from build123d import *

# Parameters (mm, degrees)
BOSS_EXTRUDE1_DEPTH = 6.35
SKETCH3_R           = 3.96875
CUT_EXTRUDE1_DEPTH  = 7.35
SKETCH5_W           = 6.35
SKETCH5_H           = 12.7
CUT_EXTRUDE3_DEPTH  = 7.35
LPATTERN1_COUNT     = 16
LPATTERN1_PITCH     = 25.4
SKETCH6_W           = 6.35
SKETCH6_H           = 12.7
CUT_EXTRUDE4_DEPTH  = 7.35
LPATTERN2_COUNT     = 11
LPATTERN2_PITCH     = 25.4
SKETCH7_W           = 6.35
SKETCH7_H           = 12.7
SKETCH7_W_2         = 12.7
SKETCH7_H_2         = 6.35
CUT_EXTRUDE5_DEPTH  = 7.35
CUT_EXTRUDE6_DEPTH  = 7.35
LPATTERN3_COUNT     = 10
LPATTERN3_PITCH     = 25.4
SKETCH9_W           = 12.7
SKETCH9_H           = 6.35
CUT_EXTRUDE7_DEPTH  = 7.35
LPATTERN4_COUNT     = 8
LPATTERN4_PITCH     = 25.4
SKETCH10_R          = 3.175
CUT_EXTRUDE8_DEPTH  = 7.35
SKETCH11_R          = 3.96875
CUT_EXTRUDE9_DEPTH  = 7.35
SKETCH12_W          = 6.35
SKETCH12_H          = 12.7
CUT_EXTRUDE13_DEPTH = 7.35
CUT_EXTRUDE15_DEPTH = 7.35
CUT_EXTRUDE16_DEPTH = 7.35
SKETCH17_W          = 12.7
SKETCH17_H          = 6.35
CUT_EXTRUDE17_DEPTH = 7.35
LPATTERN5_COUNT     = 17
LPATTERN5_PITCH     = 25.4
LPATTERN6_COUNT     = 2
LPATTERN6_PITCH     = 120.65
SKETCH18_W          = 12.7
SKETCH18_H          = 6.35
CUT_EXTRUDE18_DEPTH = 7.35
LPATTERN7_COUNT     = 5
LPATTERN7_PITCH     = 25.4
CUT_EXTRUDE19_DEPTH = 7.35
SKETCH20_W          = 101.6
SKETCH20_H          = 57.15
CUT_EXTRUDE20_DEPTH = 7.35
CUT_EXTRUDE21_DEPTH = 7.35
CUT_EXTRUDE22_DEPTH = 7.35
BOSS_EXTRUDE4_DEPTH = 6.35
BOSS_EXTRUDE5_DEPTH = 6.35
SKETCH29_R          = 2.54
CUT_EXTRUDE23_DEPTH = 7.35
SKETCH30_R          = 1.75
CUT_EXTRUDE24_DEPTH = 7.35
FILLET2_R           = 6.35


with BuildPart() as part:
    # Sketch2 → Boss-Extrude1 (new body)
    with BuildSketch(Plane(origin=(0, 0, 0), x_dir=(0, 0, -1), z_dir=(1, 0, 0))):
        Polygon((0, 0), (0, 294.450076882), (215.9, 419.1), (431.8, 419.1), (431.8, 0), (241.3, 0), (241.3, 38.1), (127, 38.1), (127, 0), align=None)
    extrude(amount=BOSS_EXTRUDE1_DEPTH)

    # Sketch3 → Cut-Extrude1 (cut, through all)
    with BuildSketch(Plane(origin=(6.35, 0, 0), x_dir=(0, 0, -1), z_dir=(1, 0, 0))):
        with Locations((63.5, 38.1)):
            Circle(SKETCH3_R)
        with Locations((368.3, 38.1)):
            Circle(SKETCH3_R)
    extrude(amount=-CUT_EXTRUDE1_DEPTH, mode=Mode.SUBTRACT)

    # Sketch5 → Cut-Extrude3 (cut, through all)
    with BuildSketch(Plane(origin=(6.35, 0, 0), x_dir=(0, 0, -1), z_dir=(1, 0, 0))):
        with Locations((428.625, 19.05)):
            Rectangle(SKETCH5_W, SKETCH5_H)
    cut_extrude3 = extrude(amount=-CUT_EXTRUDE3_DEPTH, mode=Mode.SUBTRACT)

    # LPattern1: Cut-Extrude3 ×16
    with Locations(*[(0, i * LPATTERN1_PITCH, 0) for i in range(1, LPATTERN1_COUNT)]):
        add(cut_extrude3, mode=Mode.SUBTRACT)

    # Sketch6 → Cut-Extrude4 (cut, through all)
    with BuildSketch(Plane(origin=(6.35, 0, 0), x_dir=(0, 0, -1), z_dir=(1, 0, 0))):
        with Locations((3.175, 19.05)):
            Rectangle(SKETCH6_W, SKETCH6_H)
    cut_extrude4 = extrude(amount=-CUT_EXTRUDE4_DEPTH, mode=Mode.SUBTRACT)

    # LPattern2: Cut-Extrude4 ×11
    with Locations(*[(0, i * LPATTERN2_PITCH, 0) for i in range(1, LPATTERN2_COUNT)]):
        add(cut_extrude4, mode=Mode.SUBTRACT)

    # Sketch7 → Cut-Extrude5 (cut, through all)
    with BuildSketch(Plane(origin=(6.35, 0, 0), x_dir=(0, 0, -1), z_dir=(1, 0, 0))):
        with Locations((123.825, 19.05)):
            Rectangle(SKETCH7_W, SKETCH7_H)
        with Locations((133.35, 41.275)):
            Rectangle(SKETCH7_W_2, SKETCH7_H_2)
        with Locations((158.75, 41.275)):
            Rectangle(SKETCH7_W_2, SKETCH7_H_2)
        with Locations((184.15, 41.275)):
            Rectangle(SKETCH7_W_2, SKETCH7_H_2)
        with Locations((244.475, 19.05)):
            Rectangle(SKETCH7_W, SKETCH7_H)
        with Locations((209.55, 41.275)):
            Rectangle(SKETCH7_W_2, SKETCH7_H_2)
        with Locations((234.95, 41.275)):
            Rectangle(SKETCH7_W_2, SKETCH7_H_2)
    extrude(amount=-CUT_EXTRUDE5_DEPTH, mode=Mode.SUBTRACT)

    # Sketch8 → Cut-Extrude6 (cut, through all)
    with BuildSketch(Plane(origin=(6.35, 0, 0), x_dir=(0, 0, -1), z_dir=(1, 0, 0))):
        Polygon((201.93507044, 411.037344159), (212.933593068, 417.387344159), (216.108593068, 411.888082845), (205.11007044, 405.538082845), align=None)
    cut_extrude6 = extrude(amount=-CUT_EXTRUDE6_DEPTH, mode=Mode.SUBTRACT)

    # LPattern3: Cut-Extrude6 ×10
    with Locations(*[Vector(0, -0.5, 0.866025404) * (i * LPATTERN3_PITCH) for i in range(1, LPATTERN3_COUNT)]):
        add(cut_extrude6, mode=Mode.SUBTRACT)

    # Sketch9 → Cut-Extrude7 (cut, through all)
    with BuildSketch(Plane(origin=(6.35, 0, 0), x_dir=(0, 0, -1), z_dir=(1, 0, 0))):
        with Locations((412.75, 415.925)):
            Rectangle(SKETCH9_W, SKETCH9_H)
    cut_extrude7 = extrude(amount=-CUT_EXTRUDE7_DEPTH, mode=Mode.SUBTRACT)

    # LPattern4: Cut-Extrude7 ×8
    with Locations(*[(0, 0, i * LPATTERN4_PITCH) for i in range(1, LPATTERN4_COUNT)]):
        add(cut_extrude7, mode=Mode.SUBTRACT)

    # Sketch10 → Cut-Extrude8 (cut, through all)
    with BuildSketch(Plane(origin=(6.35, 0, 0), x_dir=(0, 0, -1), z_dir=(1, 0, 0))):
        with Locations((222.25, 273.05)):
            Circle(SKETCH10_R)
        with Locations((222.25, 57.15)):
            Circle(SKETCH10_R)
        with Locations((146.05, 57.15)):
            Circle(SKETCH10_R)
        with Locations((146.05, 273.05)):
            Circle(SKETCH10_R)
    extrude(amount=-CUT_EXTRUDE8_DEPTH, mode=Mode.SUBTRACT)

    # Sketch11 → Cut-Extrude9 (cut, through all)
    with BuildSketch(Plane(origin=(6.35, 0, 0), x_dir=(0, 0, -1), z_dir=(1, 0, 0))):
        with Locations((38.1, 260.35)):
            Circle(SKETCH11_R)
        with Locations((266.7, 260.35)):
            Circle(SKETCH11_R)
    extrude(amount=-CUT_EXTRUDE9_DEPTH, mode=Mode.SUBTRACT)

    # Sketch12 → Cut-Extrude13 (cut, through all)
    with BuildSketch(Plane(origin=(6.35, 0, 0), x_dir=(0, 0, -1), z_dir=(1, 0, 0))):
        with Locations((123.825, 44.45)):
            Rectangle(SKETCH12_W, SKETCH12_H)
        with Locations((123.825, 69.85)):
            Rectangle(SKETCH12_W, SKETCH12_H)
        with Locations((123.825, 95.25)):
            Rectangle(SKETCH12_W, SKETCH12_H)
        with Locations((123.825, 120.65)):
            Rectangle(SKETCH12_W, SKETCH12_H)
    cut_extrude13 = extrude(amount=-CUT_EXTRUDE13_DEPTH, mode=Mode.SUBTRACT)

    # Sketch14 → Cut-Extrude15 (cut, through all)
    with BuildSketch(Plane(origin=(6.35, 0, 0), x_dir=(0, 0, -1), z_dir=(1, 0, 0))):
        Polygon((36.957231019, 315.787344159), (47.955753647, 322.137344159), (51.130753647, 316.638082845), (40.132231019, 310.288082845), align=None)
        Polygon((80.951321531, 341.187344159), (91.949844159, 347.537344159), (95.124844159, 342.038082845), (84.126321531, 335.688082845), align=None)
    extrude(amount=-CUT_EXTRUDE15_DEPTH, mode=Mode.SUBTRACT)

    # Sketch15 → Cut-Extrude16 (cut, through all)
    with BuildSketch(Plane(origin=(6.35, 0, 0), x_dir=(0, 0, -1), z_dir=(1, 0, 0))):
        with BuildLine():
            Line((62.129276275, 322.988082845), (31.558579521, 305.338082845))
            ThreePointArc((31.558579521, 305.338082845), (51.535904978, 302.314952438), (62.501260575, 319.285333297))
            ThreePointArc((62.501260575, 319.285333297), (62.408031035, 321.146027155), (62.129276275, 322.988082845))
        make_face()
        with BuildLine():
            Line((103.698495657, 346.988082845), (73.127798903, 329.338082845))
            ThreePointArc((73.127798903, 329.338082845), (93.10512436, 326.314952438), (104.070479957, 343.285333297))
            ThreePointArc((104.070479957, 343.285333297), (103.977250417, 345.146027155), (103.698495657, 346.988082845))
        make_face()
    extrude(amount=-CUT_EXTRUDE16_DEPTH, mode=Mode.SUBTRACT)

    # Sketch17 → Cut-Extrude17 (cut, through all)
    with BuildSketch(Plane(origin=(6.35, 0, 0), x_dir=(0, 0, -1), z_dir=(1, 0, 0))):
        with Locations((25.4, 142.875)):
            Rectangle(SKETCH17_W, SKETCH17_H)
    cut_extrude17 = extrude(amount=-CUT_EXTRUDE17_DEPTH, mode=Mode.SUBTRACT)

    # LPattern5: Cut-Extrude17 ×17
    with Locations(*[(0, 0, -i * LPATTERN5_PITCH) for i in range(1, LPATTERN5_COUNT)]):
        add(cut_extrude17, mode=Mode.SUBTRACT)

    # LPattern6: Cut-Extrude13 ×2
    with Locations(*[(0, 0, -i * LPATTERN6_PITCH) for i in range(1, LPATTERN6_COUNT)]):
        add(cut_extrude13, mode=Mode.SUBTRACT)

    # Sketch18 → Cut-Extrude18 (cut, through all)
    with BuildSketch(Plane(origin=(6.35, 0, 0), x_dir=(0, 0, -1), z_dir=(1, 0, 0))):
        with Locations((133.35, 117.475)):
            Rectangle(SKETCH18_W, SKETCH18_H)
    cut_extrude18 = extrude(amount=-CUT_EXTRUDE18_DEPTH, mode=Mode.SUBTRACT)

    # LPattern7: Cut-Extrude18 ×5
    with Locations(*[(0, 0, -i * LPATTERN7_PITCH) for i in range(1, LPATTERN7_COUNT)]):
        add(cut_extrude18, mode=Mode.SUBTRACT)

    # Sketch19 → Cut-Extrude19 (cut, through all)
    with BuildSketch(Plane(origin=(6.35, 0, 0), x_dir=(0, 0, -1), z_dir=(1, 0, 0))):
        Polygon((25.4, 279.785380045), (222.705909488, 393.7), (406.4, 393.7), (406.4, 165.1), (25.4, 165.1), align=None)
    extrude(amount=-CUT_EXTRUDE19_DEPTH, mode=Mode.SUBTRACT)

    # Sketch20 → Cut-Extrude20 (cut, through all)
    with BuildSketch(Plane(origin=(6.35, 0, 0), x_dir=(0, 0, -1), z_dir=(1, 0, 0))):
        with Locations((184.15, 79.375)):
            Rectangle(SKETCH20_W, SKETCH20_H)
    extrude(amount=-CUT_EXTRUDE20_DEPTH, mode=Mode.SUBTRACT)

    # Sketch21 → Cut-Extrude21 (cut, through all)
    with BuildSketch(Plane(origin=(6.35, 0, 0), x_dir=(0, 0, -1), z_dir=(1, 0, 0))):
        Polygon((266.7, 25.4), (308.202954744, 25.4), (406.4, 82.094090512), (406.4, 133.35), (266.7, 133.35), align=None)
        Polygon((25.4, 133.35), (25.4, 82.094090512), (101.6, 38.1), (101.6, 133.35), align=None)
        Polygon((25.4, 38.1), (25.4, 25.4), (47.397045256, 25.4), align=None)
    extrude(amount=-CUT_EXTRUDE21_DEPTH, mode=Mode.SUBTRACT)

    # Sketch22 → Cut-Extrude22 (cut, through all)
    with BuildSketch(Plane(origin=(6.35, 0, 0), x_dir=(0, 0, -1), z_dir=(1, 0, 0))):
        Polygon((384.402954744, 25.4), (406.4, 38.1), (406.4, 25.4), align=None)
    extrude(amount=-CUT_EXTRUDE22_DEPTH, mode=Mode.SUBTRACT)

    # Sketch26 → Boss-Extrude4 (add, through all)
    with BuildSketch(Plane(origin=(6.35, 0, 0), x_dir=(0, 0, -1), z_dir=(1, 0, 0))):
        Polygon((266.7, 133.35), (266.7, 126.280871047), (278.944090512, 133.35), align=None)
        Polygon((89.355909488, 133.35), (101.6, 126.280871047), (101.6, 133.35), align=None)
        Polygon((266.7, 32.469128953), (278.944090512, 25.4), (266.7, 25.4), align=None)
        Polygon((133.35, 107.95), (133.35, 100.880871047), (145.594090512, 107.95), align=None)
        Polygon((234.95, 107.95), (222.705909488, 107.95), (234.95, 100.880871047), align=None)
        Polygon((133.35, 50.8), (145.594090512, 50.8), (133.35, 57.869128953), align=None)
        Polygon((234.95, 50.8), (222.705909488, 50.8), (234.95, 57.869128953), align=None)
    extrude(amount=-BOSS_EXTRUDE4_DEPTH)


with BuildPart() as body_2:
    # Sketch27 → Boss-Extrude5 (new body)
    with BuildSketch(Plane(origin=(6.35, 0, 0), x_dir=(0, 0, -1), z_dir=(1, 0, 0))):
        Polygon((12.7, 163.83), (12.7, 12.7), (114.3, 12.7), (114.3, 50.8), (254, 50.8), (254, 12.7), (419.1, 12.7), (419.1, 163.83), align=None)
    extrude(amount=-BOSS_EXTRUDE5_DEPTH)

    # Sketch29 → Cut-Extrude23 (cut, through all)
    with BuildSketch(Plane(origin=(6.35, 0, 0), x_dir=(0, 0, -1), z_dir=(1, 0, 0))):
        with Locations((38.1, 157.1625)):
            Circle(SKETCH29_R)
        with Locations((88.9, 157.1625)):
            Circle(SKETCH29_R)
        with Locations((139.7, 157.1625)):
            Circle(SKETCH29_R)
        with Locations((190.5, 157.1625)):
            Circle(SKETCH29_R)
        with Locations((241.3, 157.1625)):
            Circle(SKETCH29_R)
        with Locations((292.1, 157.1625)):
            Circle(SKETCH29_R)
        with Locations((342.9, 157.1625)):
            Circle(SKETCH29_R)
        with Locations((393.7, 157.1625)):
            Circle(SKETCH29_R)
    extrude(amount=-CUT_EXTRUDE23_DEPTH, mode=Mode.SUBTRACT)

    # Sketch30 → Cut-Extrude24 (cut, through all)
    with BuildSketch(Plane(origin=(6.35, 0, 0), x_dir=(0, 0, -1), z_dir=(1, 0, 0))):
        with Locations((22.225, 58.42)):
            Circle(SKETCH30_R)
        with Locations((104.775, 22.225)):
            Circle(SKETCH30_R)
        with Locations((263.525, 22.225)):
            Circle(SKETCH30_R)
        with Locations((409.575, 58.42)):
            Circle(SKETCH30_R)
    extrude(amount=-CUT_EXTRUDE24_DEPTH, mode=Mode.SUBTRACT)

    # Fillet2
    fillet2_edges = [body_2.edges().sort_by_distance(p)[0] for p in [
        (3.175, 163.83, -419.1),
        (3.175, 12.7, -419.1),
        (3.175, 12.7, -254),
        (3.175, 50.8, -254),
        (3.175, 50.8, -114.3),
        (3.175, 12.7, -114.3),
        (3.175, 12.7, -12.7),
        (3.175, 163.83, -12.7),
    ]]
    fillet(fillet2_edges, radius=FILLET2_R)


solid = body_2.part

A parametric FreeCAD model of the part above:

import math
import FreeCAD as App
import Part
import Sketcher
from FreeCAD import Vector
Q = App.Units.Quantity


def edges_at(feature, points):
    """Names of the edges that pass closest to the given points."""
    edges = feature.Shape.Edges
    near = lambda p: min(range(len(edges)), key=lambda i: edges[i].distToShape(Part.Vertex(*p))[0])
    return sorted({f"Edge{near(p) + 1}" for p in points})


def add_polygon(sketch, points):
    """Adds a closed chain of lines whose ends are joined by coincident constraints."""
    first, n = sketch.GeometryCount, len(points)
    for a, b in zip(points, points[1:] + points[:1]):
        sketch.addGeometry(Part.LineSegment(App.Vector(*a, 0), App.Vector(*b, 0)), False)
    for i in range(n):
        sketch.addConstraint(Sketcher.Constraint("Coincident", first + i, 2, first + (i + 1) % n, 1))

doc = App.newDocument("Part")
body = doc.addObject("PartDesign::Body", "Body")

# Sketch on YZ plane
sketch1 = body.newObject("Sketcher::SketchObject", "Sketch")
sketch1.AttachmentSupport = (doc.getObject("YZ_Plane"), [""])
sketch1.MapMode = "FlatFace"
add_polygon(sketch1, [(294.450077, 0), (0, 0), (0, -127), (38.1, -127), (38.1, -241.3), (0, -241.3), (0, -431.8), (419.1, -431.8), (419.1, -215.9)])  # lines 0-8
sketch1.addConstraint(Sketcher.Constraint("Horizontal", 0))
sketch1.addConstraint(Sketcher.Constraint("Vertical", 1))
sketch1.addConstraint(Sketcher.Constraint("Horizontal", 2))
sketch1.addConstraint(Sketcher.Constraint("Vertical", 3))
sketch1.addConstraint(Sketcher.Constraint("Horizontal", 4))
sketch1.addConstraint(Sketcher.Constraint("Vertical", 5))
sketch1.addConstraint(Sketcher.Constraint("Horizontal", 6))
sketch1.addConstraint(Sketcher.Constraint("Vertical", 7))
sketch1.addConstraint(Sketcher.Constraint("Coincident", 0, 2, -1, 1))
sketch1.addConstraint(Sketcher.Constraint("PointOnObject", 4, 2, -2))
sketch1.addConstraint(Sketcher.Constraint("DistanceY", 1, 2, 1, 1, Q("5 in")))
sketch1.addConstraint(Sketcher.Constraint("DistanceX", 2, 1, 2, 2, Q("1.5 in")))
sketch1.addConstraint(Sketcher.Constraint("DistanceX", 6, 1, 6, 2, Q("16.5 in")))
sketch1.addConstraint(Sketcher.Constraint("DistanceY", 3, 2, 3, 1, Q("4.5 in")))
sketch1.addConstraint(Sketcher.Constraint("DistanceY", 5, 2, 5, 1, Q("7.5 in")))
sketch1.addConstraint(Sketcher.Constraint("DistanceY", 7, 1, 7, 2, Q("8.5 in")))
sketch1.addConstraint(Sketcher.Constraint("Angle", 8, Q("120 deg")))
pad1 = body.newObject("PartDesign::Pad", "Pad")
pad1.Profile = sketch1
pad1.Length = Q("0.25 in")

# Sketch on YZ plane
sketch2 = body.newObject("Sketcher::SketchObject", "Sketch001")
sketch2.AttachmentSupport = (doc.getObject("YZ_Plane"), [""])
sketch2.MapMode = "FlatFace"
sketch2.AttachmentOffset = App.Placement(Vector(0, 0, 0.25 * 25.4), App.Rotation())
sketch2.addGeometry(Part.Circle(Vector(38.1, -63.5, 0), Vector(0, 0, 1), 3.96875), False)
sketch2.addGeometry(Part.Circle(Vector(38.1, -368.3, 0), Vector(0, 0, 1), 3.96875), False)
sketch2.addConstraint(Sketcher.Constraint("Equal", 0, 1))
sketch2.addConstraint(Sketcher.Constraint("Vertical", 0, 3, 1, 3))
sketch2.addConstraint(Sketcher.Constraint("Diameter", 0, Q("0.3125 in")))
sketch2.addConstraint(Sketcher.Constraint("DistanceY", 1, 3, 0, 3, Q("12 in")))
sketch2.addConstraint(Sketcher.Constraint("DistanceX", -1, 1, 0, 3, Q("1.5 in")))
sketch2.addConstraint(Sketcher.Constraint("DistanceY", 0, 3, -1, 1, Q("2.5 in")))
pocket1 = body.newObject("PartDesign::Pocket", "Pocket")
pocket1.Profile = sketch2
pocket1.Type = "ThroughAll"

# Sketch on YZ plane
sketch3 = body.newObject("Sketcher::SketchObject", "Sketch002")
sketch3.AttachmentSupport = (doc.getObject("YZ_Plane"), [""])
sketch3.MapMode = "FlatFace"
sketch3.AttachmentOffset = App.Placement(Vector(0, 0, 0.25 * 25.4), App.Rotation())
add_polygon(sketch3, [(25.4, -425.45), (12.7, -425.45), (12.7, -431.8), (25.4, -431.8)])  # lines 0-3
sketch3.addConstraint(Sketcher.Constraint("Horizontal", 0))
sketch3.addConstraint(Sketcher.Constraint("Vertical", 1))
sketch3.addConstraint(Sketcher.Constraint("Horizontal", 2))
sketch3.addConstraint(Sketcher.Constraint("Vertical", 3))
sketch3.addConstraint(Sketcher.Constraint("DistanceX", 0, 2, 0, 1, Q("0.5 in")))
sketch3.addConstraint(Sketcher.Constraint("DistanceY", 1, 2, -1, 1, Q("17 in")))
sketch3.addConstraint(Sketcher.Constraint("DistanceX", -1, 1, 2, 2, Q("1 in")))
sketch3.addConstraint(Sketcher.Constraint("DistanceY", 1, 2, 1, 1, Q("0.25 in")))
pocket2 = body.newObject("PartDesign::Pocket", "Pocket001")
pocket2.Profile = sketch3
pocket2.Type = "ThroughAll"
doc.recompute()

linearpattern = body.newObject("PartDesign::LinearPattern", "LinearPattern")
linearpattern.Originals = [pocket2]
linearpattern.Direction = (doc.getObject("Y_Axis"), [""])
linearpattern.Mode = "offset"
linearpattern.Offset = Q("1 in")
linearpattern.Occurrences = 16
body.Tip = linearpattern

# Sketch on YZ plane
sketch4 = body.newObject("Sketcher::SketchObject", "Sketch003")
sketch4.AttachmentSupport = (doc.getObject("YZ_Plane"), [""])
sketch4.MapMode = "FlatFace"
sketch4.AttachmentOffset = App.Placement(Vector(0, 0, 0.25 * 25.4), App.Rotation())
add_polygon(sketch4, [(25.4, 0), (12.7, 0), (12.7, -6.35), (25.4, -6.35)])  # lines 0-3
sketch4.addConstraint(Sketcher.Constraint("Horizontal", 0))
sketch4.addConstraint(Sketcher.Constraint("Vertical", 1))
sketch4.addConstraint(Sketcher.Constraint("Horizontal", 2))
sketch4.addConstraint(Sketcher.Constraint("Vertical", 3))
sketch4.addConstraint(Sketcher.Constraint("PointOnObject", 0, 2, -1))
sketch4.addConstraint(Sketcher.Constraint("DistanceX", 0, 2, 0, 1, Q("0.5 in")))
sketch4.addConstraint(Sketcher.Constraint("DistanceX", -1, 1, 2, 2, Q("1 in")))
sketch4.addConstraint(Sketcher.Constraint("DistanceY", 1, 2, 1, 1, Q("0.25 in")))
pocket3 = body.newObject("PartDesign::Pocket", "Pocket002")
pocket3.Profile = sketch4
pocket3.Type = "ThroughAll"
doc.recompute()

linearpattern2 = body.newObject("PartDesign::LinearPattern", "LinearPattern001")
linearpattern2.Originals = [pocket3]
linearpattern2.Direction = (doc.getObject("Y_Axis"), [""])
linearpattern2.Mode = "offset"
linearpattern2.Offset = Q("1 in")
linearpattern2.Occurrences = 11
body.Tip = linearpattern2

# Sketch on YZ plane
sketch5 = body.newObject("Sketcher::SketchObject", "Sketch004")
sketch5.AttachmentSupport = (doc.getObject("YZ_Plane"), [""])
sketch5.MapMode = "FlatFace"
sketch5.AttachmentOffset = App.Placement(Vector(0, 0, 0.25 * 25.4), App.Rotation())
add_polygon(sketch5, [(25.4, -120.65), (12.7, -120.65), (12.7, -127), (25.4, -127)])  # lines 0-3
add_polygon(sketch5, [(44.45, -127), (38.1, -127), (38.1, -139.7), (44.45, -139.7)])  # lines 4-7
add_polygon(sketch5, [(44.45, -152.4), (38.1, -152.4), (38.1, -165.1), (44.45, -165.1)])  # lines 8-11
add_polygon(sketch5, [(44.45, -177.8), (38.1, -177.8), (38.1, -190.5), (44.45, -190.5)])  # lines 12-15
add_polygon(sketch5, [(25.4, -241.3), (12.7, -241.3), (12.7, -247.65), (25.4, -247.65)])  # lines 16-19
add_polygon(sketch5, [(44.45, -203.2), (38.1, -203.2), (38.1, -215.9), (44.45, -215.9)])  # lines 20-23
add_polygon(sketch5, [(44.45, -228.6), (38.1, -228.6), (38.1, -241.3), (44.45, -241.3)])  # lines 24-27
sketch5.addConstraint(Sketcher.Constraint("Horizontal", 0))
sketch5.addConstraint(Sketcher.Constraint("Vertical", 1))
sketch5.addConstraint(Sketcher.Constraint("Horizontal", 2))
sketch5.addConstraint(Sketcher.Constraint("Vertical", 3))
sketch5.addConstraint(Sketcher.Constraint("Horizontal", 4))
sketch5.addConstraint(Sketcher.Constraint("Vertical", 5))
sketch5.addConstraint(Sketcher.Constraint("Horizontal", 6))
sketch5.addConstraint(Sketcher.Constraint("Vertical", 7))
sketch5.addConstraint(Sketcher.Constraint("Horizontal", 8))
sketch5.addConstraint(Sketcher.Constraint("Vertical", 9))
sketch5.addConstraint(Sketcher.Constraint("Horizontal", 10))
sketch5.addConstraint(Sketcher.Constraint("Vertical", 11))
sketch5.addConstraint(Sketcher.Constraint("Horizontal", 12))
sketch5.addConstraint(Sketcher.Constraint("Vertical", 13))
sketch5.addConstraint(Sketcher.Constraint("Horizontal", 14))
sketch5.addConstraint(Sketcher.Constraint("Vertical", 15))
sketch5.addConstraint(Sketcher.Constraint("Horizontal", 16))
sketch5.addConstraint(Sketcher.Constraint("Vertical", 17))
sketch5.addConstraint(Sketcher.Constraint("Horizontal", 18))
sketch5.addConstraint(Sketcher.Constraint("Vertical", 19))
sketch5.addConstraint(Sketcher.Constraint("Horizontal", 20))
sketch5.addConstraint(Sketcher.Constraint("Vertical", 21))
sketch5.addConstraint(Sketcher.Constraint("Horizontal", 22))
sketch5.addConstraint(Sketcher.Constraint("Vertical", 23))
sketch5.addConstraint(Sketcher.Constraint("Horizontal", 24))
sketch5.addConstraint(Sketcher.Constraint("Vertical", 25))
sketch5.addConstraint(Sketcher.Constraint("Horizontal", 26))
sketch5.addConstraint(Sketcher.Constraint("Vertical", 27))
sketch5.addConstraint(Sketcher.Constraint("Horizontal", 2, 2, 4, 2))
sketch5.addConstraint(Sketcher.Constraint("Horizontal", 19, 2, 25, 2))
sketch5.addConstraint(Sketcher.Constraint("Vertical", 5, 2, 8, 2))
sketch5.addConstraint(Sketcher.Constraint("Vertical", 7, 2, 10, 2))
sketch5.addConstraint(Sketcher.Constraint("Vertical", 9, 2, 12, 2))
sketch5.addConstraint(Sketcher.Constraint("Vertical", 11, 2, 14, 2))
sketch5.addConstraint(Sketcher.Constraint("Vertical", 1, 2, 16, 2))
sketch5.addConstraint(Sketcher.Constraint("Vertical", 3, 2, 18, 2))
sketch5.addConstraint(Sketcher.Constraint("Vertical", 13, 2, 20, 2))
sketch5.addConstraint(Sketcher.Constraint("Vertical", 15, 2, 22, 2))
sketch5.addConstraint(Sketcher.Constraint("Vertical", 21, 2, 24, 2))
sketch5.addConstraint(Sketcher.Constraint("Vertical", 23, 2, 26, 2))
sketch5.addConstraint(Sketcher.Constraint("Equal", 26, 1))
sketch5.addConstraint(Sketcher.Constraint("Equal", 18, 5))
sketch5.addConstraint(Sketcher.Constraint("Equal", 7, 9))
sketch5.addConstraint(Sketcher.Constraint("Equal", 11, 13))
sketch5.addConstraint(Sketcher.Constraint("Equal", 3, 17))
sketch5.addConstraint(Sketcher.Constraint("Equal", 15, 21))
sketch5.addConstraint(Sketcher.Constraint("Equal", 23, 25))
sketch5.addConstraint(Sketcher.Constraint("DistanceX", 0, 2, 0, 1, Q("0.5 in")))
sketch5.addConstraint(Sketcher.Constraint("DistanceY", 1, 2, -1, 1, Q("5 in")))
sketch5.addConstraint(Sketcher.Constraint("DistanceX", -1, 1, 2, 2, Q("1 in")))
sketch5.addConstraint(Sketcher.Constraint("DistanceY", 8, 2, -1, 1, Q("6 in")))
sketch5.addConstraint(Sketcher.Constraint("DistanceY", 12, 2, -1, 1, Q("7 in")))
sketch5.addConstraint(Sketcher.Constraint("DistanceY", 20, 2, -1, 1, Q("8 in")))
sketch5.addConstraint(Sketcher.Constraint("DistanceY", 24, 2, -1, 1, Q("9 in")))
sketch5.addConstraint(Sketcher.Constraint("DistanceX", 1, 2, 4, 2, Q("1 in")))
sketch5.addConstraint(Sketcher.Constraint("DistanceX", 4, 2, 4, 1, Q("0.25 in")))
pocket4 = body.newObject("PartDesign::Pocket", "Pocket003")
pocket4.Profile = sketch5
pocket4.Type = "ThroughAll"

# Sketch on YZ plane
sketch6 = body.newObject("Sketcher::SketchObject", "Sketch005")
sketch6.AttachmentSupport = (doc.getObject("YZ_Plane"), [""])
sketch6.MapMode = "FlatFace"
sketch6.AttachmentOffset = App.Placement(Vector(0, 0, 0.25 * 25.4), App.Rotation())
add_polygon(sketch6, [(417.387344, -212.933593), (411.037344, -201.93507), (405.538083, -205.11007), (411.888083, -216.108593)])  # lines 0-3
sketch6.addConstraint(Sketcher.Constraint("Perpendicular", 0, 1))
sketch6.addConstraint(Sketcher.Constraint("Perpendicular", 1, 2))
sketch6.addConstraint(Sketcher.Constraint("Perpendicular", 2, 3))
sketch6.addConstraint(Sketcher.Constraint("Angle", 0, Q("120 deg")))
sketch6.addConstraint(Sketcher.Constraint("Distance", 0, Q("0.5 in")))
sketch6.addConstraint(Sketcher.Constraint("Distance", 1, Q("0.25 in")))
sketch6.addConstraint(Sketcher.Constraint("DistanceY", 0, 2, -1, 1, 201.93507))
sketch6.addConstraint(Sketcher.Constraint("DistanceX", -1, 1, 0, 2, 411.037344))
pocket5 = body.newObject("PartDesign::Pocket", "Pocket004")
pocket5.Profile = sketch6
pocket5.Type = "ThroughAll"
doc.recompute()

datumline = body.newObject("PartDesign::Line", "DatumLine")
datumline.Placement = App.Placement(Vector(0, 0, 0), App.Rotation(Vector(0, 0, 1), Vector(0, -0.5, 0.866025404)))
linearpattern3 = body.newObject("PartDesign::LinearPattern", "LinearPattern002")
linearpattern3.Originals = [pocket5]
linearpattern3.Direction = (datumline, [""])
linearpattern3.Mode = "offset"
linearpattern3.Offset = Q("1 in")
linearpattern3.Occurrences = 10
body.Tip = linearpattern3

# Sketch on YZ plane
sketch7 = body.newObject("Sketcher::SketchObject", "Sketch006")
sketch7.AttachmentSupport = (doc.getObject("YZ_Plane"), [""])
sketch7.MapMode = "FlatFace"
sketch7.AttachmentOffset = App.Placement(Vector(0, 0, 0.25 * 25.4), App.Rotation())
add_polygon(sketch7, [(419.1, -406.4), (412.75, -406.4), (412.75, -419.1), (419.1, -419.1)])  # lines 0-3
sketch7.addConstraint(Sketcher.Constraint("Horizontal", 0))
sketch7.addConstraint(Sketcher.Constraint("Vertical", 1))
sketch7.addConstraint(Sketcher.Constraint("Horizontal", 2))
sketch7.addConstraint(Sketcher.Constraint("Vertical", 3))
sketch7.addConstraint(Sketcher.Constraint("DistanceY", 1, 2, 1, 1, Q("0.5 in")))
sketch7.addConstraint(Sketcher.Constraint("DistanceY", 0, 2, -1, 1, Q("16 in")))
sketch7.addConstraint(Sketcher.Constraint("DistanceX", 0, 2, 0, 1, Q("0.25 in")))
sketch7.addConstraint(Sketcher.Constraint("DistanceX", -1, 1, 2, 2, Q("16.5 in")))
pocket6 = body.newObject("PartDesign::Pocket", "Pocket005")
pocket6.Profile = sketch7
pocket6.Type = "ThroughAll"
doc.recompute()

linearpattern4 = body.newObject("PartDesign::LinearPattern", "LinearPattern003")
linearpattern4.Originals = [pocket6]
linearpattern4.Direction = (doc.getObject("Z_Axis"), [""])
linearpattern4.Mode = "offset"
linearpattern4.Offset = Q("1 in")
linearpattern4.Occurrences = 8
body.Tip = linearpattern4

# Sketch on YZ plane
sketch8 = body.newObject("Sketcher::SketchObject", "Sketch007")
sketch8.AttachmentSupport = (doc.getObject("YZ_Plane"), [""])
sketch8.MapMode = "FlatFace"
sketch8.AttachmentOffset = App.Placement(Vector(0, 0, 0.25 * 25.4), App.Rotation())
sketch8.addGeometry(Part.Circle(Vector(273.05, -222.25, 0), Vector(0, 0, 1), 3.175), False)
sketch8.addGeometry(Part.Circle(Vector(57.15, -222.25, 0), Vector(0, 0, 1), 3.175), False)
sketch8.addGeometry(Part.Circle(Vector(57.15, -146.05, 0), Vector(0, 0, 1), 3.175), False)
sketch8.addGeometry(Part.Circle(Vector(273.05, -146.05, 0), Vector(0, 0, 1), 3.175), False)
sketch8.addConstraint(Sketcher.Constraint("Equal", 0, 1))
sketch8.addConstraint(Sketcher.Constraint("Equal", 1, 2))
sketch8.addConstraint(Sketcher.Constraint("Equal", 2, 3))
sketch8.addConstraint(Sketcher.Constraint("Horizontal", 0, 3, 1, 3))
sketch8.addConstraint(Sketcher.Constraint("Horizontal", 2, 3, 3, 3))
sketch8.addConstraint(Sketcher.Constraint("Vertical", 1, 3, 2, 3))
sketch8.addConstraint(Sketcher.Constraint("Vertical", 0, 3, 3, 3))
sketch8.addConstraint(Sketcher.Constraint("Diameter", 0, Q("0.25 in")))
sketch8.addConstraint(Sketcher.Constraint("DistanceY", 1, 3, 2, 3, Q("3 in")))
sketch8.addConstraint(Sketcher.Constraint("DistanceX", 1, 3, 0, 3, Q("8.5 in")))
sketch8.addConstraint(Sketcher.Constraint("DistanceX", -1, 1, 0, 3, Q("10.75 in")))
sketch8.addConstraint(Sketcher.Constraint("DistanceY", 0, 3, -1, 1, Q("8.75 in")))
pocket7 = body.newObject("PartDesign::Pocket", "Pocket006")
pocket7.Profile = sketch8
pocket7.Type = "ThroughAll"

# Sketch on YZ plane
sketch9 = body.newObject("Sketcher::SketchObject", "Sketch008")
sketch9.AttachmentSupport = (doc.getObject("YZ_Plane"), [""])
sketch9.MapMode = "FlatFace"
sketch9.AttachmentOffset = App.Placement(Vector(0, 0, 0.25 * 25.4), App.Rotation())
sketch9.addGeometry(Part.Circle(Vector(260.35, -38.1, 0), Vector(0, 0, 1), 3.96875), False)
sketch9.addGeometry(Part.Circle(Vector(260.35, -266.7, 0), Vector(0, 0, 1), 3.96875), False)
sketch9.addConstraint(Sketcher.Constraint("Equal", 0, 1))
sketch9.addConstraint(Sketcher.Constraint("Vertical", 0, 3, 1, 3))
sketch9.addConstraint(Sketcher.Constraint("Diameter", 0, Q("0.3125 in")))
sketch9.addConstraint(Sketcher.Constraint("DistanceY", 1, 3, 0, 3, Q("9 in")))
sketch9.addConstraint(Sketcher.Constraint("DistanceY", 0, 3, -1, 1, Q("1.5 in")))
sketch9.addConstraint(Sketcher.Constraint("DistanceX", -1, 1, 0, 3, Q("10.25 in")))
pocket8 = body.newObject("PartDesign::Pocket", "Pocket007")
pocket8.Profile = sketch9
pocket8.Type = "ThroughAll"

# Sketch on YZ plane
sketch10 = body.newObject("Sketcher::SketchObject", "Sketch009")
sketch10.AttachmentSupport = (doc.getObject("YZ_Plane"), [""])
sketch10.MapMode = "FlatFace"
sketch10.AttachmentOffset = App.Placement(Vector(0, 0, 0.25 * 25.4), App.Rotation())
add_polygon(sketch10, [(50.8, -120.65), (38.1, -120.65), (38.1, -127), (50.8, -127)])  # lines 0-3
add_polygon(sketch10, [(76.2, -120.65), (63.5, -120.65), (63.5, -127), (76.2, -127)])  # lines 4-7
add_polygon(sketch10, [(101.6, -120.65), (88.9, -120.65), (88.9, -127), (101.6, -127)])  # lines 8-11
add_polygon(sketch10, [(127, -120.65), (114.3, -120.65), (114.3, -127), (127, -127)])  # lines 12-15
sketch10.addConstraint(Sketcher.Constraint("Horizontal", 0))
sketch10.addConstraint(Sketcher.Constraint("Vertical", 1))
sketch10.addConstraint(Sketcher.Constraint("Horizontal", 2))
sketch10.addConstraint(Sketcher.Constraint("Vertical", 3))
sketch10.addConstraint(Sketcher.Constraint("Horizontal", 4))
sketch10.addConstraint(Sketcher.Constraint("Vertical", 5))
sketch10.addConstraint(Sketcher.Constraint("Horizontal", 6))
sketch10.addConstraint(Sketcher.Constraint("Vertical", 7))
sketch10.addConstraint(Sketcher.Constraint("Horizontal", 8))
sketch10.addConstraint(Sketcher.Constraint("Vertical", 9))
sketch10.addConstraint(Sketcher.Constraint("Horizontal", 10))
sketch10.addConstraint(Sketcher.Constraint("Vertical", 11))
sketch10.addConstraint(Sketcher.Constraint("Horizontal", 12))
sketch10.addConstraint(Sketcher.Constraint("Vertical", 13))
sketch10.addConstraint(Sketcher.Constraint("Horizontal", 14))
sketch10.addConstraint(Sketcher.Constraint("Vertical", 15))
sketch10.addConstraint(Sketcher.Constraint("Horizontal", 3, 2, 4, 2))
sketch10.addConstraint(Sketcher.Constraint("Horizontal", 2, 2, 5, 2))
sketch10.addConstraint(Sketcher.Constraint("Horizontal", 7, 2, 8, 2))
sketch10.addConstraint(Sketcher.Constraint("Horizontal", 6, 2, 9, 2))
sketch10.addConstraint(Sketcher.Constraint("Horizontal", 11, 2, 12, 2))
sketch10.addConstraint(Sketcher.Constraint("Horizontal", 10, 2, 13, 2))
sketch10.addConstraint(Sketcher.Constraint("Equal", 2, 4))
sketch10.addConstraint(Sketcher.Constraint("Equal", 6, 8))
sketch10.addConstraint(Sketcher.Constraint("Equal", 10, 12))
sketch10.addConstraint(Sketcher.Constraint("DistanceX", 0, 2, 0, 1, Q("0.5 in")))
sketch10.addConstraint(Sketcher.Constraint("DistanceY", 1, 2, -1, 1, Q("5 in")))
sketch10.addConstraint(Sketcher.Constraint("DistanceX", -1, 1, 2, 2, Q("2 in")))
sketch10.addConstraint(Sketcher.Constraint("DistanceX", -1, 1, 6, 2, Q("3 in")))
sketch10.addConstraint(Sketcher.Constraint("DistanceX", -1, 1, 10, 2, Q("4 in")))
sketch10.addConstraint(Sketcher.Constraint("DistanceX", -1, 1, 14, 2, Q("5 in")))
sketch10.addConstraint(Sketcher.Constraint("DistanceY", 1, 2, 1, 1, Q("0.25 in")))
pocket9 = body.newObject("PartDesign::Pocket", "Pocket008")
pocket9.Profile = sketch10
pocket9.Type = "ThroughAll"

# Sketch on YZ plane
sketch11 = body.newObject("Sketcher::SketchObject", "Sketch010")
sketch11.AttachmentSupport = (doc.getObject("YZ_Plane"), [""])
sketch11.MapMode = "FlatFace"
sketch11.AttachmentOffset = App.Placement(Vector(0, 0, 0.25 * 25.4), App.Rotation())
add_polygon(sketch11, [(322.137344, -47.955754), (315.787344, -36.957231), (310.288083, -40.132231), (316.638083, -51.130754)])  # lines 0-3
add_polygon(sketch11, [(347.537344, -91.949844), (341.187344, -80.951322), (335.688083, -84.126322), (342.038083, -95.124844)])  # lines 4-7
sketch11.addConstraint(Sketcher.Constraint("Perpendicular", 0, 1))
sketch11.addConstraint(Sketcher.Constraint("Perpendicular", 1, 2))
sketch11.addConstraint(Sketcher.Constraint("Perpendicular", 2, 3))
sketch11.addConstraint(Sketcher.Constraint("Perpendicular", 3, 4))
sketch11.addConstraint(Sketcher.Constraint("Perpendicular", 4, 5))
sketch11.addConstraint(Sketcher.Constraint("Perpendicular", 5, 6))
sketch11.addConstraint(Sketcher.Constraint("Perpendicular", 6, 7))
sketch11.addConstraint(Sketcher.Constraint("Equal", 2, 4))
sketch11.addConstraint(Sketcher.Constraint("Equal", 3, 5))
sketch11.addConstraint(Sketcher.Constraint("Angle", 0, Q("120 deg")))
sketch11.addConstraint(Sketcher.Constraint("DistanceX", 0, 2, 4, 2, Q("1 in")))
sketch11.addConstraint(Sketcher.Constraint("Distance", 0, Q("0.5 in")))
sketch11.addConstraint(Sketcher.Constraint("Distance", 1, Q("0.25 in")))
sketch11.addConstraint(Sketcher.Constraint("DistanceY", 0, 2, -1, 1, 36.957231))
sketch11.addConstraint(Sketcher.Constraint("DistanceY", 4, 2, -1, 1, 80.951322))
sketch11.addConstraint(Sketcher.Constraint("DistanceX", -1, 1, 0, 2, 315.787344))
pocket10 = body.newObject("PartDesign::Pocket", "Pocket009")
pocket10.Profile = sketch11
pocket10.Type = "ThroughAll"

# Sketch on YZ plane
sketch12 = body.newObject("Sketcher::SketchObject", "Sketch011")
sketch12.AttachmentSupport = (doc.getObject("YZ_Plane"), [""])
sketch12.MapMode = "FlatFace"
sketch12.AttachmentOffset = App.Placement(Vector(0, 0, 0.25 * 25.4), App.Rotation())
sketch12.addGeometry(Part.LineSegment(Vector(322.988083, -62.129276, 0), Vector(305.338083, -31.55858, 0)), False)
sketch12.addGeometry(Part.ArcOfCircle(Part.Circle(Vector(319.285333, -43.886595, 0), Vector(0, 0, 1), 18.614665), math.radians(138.52644), math.radians(270)), False)
sketch12.addGeometry(Part.ArcOfCircle(Part.Circle(Vector(319.285333, -43.886595, 0), Vector(0, 0, 1), 18.614665), math.radians(-90), math.radians(-78.52644)), False)
sketch12.addGeometry(Part.LineSegment(Vector(346.988083, -103.698496, 0), Vector(329.338083, -73.127799, 0)), False)
sketch12.addGeometry(Part.ArcOfCircle(Part.Circle(Vector(343.285333, -85.455815, 0), Vector(0, 0, 1), 18.614665), math.radians(138.52644), math.radians(270)), False)
sketch12.addGeometry(Part.ArcOfCircle(Part.Circle(Vector(343.285333, -85.455815, 0), Vector(0, 0, 1), 18.614665), math.radians(-90), math.radians(-78.52644)), False)
sketch12.addConstraint(Sketcher.Constraint("Coincident", 0, 2, 1, 1))
sketch12.addConstraint(Sketcher.Constraint("Tangent", 1, 2, 2, 1))
sketch12.addConstraint(Sketcher.Constraint("Coincident", 2, 2, 0, 1))
sketch12.addConstraint(Sketcher.Constraint("Coincident", 3, 2, 4, 1))
sketch12.addConstraint(Sketcher.Constraint("Tangent", 4, 2, 5, 1))
sketch12.addConstraint(Sketcher.Constraint("Coincident", 5, 2, 3, 1))
sketch12.addConstraint(Sketcher.Constraint("Equal", 1, 2))
sketch12.addConstraint(Sketcher.Constraint("Equal", 2, 4))
sketch12.addConstraint(Sketcher.Constraint("Equal", 4, 5))
sketch12.addConstraint(Sketcher.Constraint("Parallel", 0, 3))
sketch12.addConstraint(Sketcher.Constraint("Vertical", 2, 3, 1, 2))
sketch12.addConstraint(Sketcher.Constraint("Vertical", 5, 3, 4, 2))
sketch12.addConstraint(Sketcher.Constraint("Equal", 0, 3))
sketch12.addConstraint(Sketcher.Constraint("Angle", 0, Q("120 deg")))
sketch12.addConstraint(Sketcher.Constraint("DistanceX", 2, 2, 3, 2, Q("0.25 in")))
sketch12.addConstraint(Sketcher.Constraint("Radius", 1, 18.614665))
sketch12.addConstraint(Sketcher.Constraint("Distance", 0, 35.3))
sketch12.addConstraint(Sketcher.Constraint("DistanceY", 3, 2, -1, 1, 73.127799))
sketch12.addConstraint(Sketcher.Constraint("DistanceY", 0, 2, -1, 1, 31.55858))
sketch12.addConstraint(Sketcher.Constraint("DistanceX", -1, 1, 1, 3, 319.285333))
pocket11 = body.newObject("PartDesign::Pocket", "Pocket010")
pocket11.Profile = sketch12
pocket11.Type = "ThroughAll"

# Sketch on YZ plane
sketch13 = body.newObject("Sketcher::SketchObject", "Sketch012")
sketch13.AttachmentSupport = (doc.getObject("YZ_Plane"), [""])
sketch13.MapMode = "FlatFace"
sketch13.AttachmentOffset = App.Placement(Vector(0, 0, 0.25 * 25.4), App.Rotation())
add_polygon(sketch13, [(146.05, -19.05), (139.7, -19.05), (139.7, -31.75), (146.05, -31.75)])  # lines 0-3
sketch13.addConstraint(Sketcher.Constraint("Horizontal", 0))
sketch13.addConstraint(Sketcher.Constraint("Vertical", 1))
sketch13.addConstraint(Sketcher.Constraint("Horizontal", 2))
sketch13.addConstraint(Sketcher.Constraint("Vertical", 3))
sketch13.addConstraint(Sketcher.Constraint("DistanceY", 1, 2, 1, 1, Q("0.5 in")))
sketch13.addConstraint(Sketcher.Constraint("DistanceX", 0, 2, 0, 1, Q("0.25 in")))
sketch13.addConstraint(Sketcher.Constraint("DistanceX", -1, 1, 0, 2, Q("5.5 in")))
sketch13.addConstraint(Sketcher.Constraint("DistanceY", 0, 2, -1, 1, Q("0.75 in")))
pocket12 = body.newObject("PartDesign::Pocket", "Pocket011")
pocket12.Profile = sketch13
pocket12.Type = "ThroughAll"
doc.recompute()

linearpattern5 = body.newObject("PartDesign::LinearPattern", "LinearPattern004")
linearpattern5.Originals = [pocket12]
linearpattern5.Direction = (doc.getObject("Z_Axis"), [""])
linearpattern5.Mode = "offset"
linearpattern5.Offset = Q("1 in")
linearpattern5.Occurrences = 17
linearpattern5.Reversed = True
body.Tip = linearpattern5
doc.recompute()

linearpattern6 = body.newObject("PartDesign::LinearPattern", "LinearPattern005")
linearpattern6.Originals = [pocket9]
linearpattern6.Direction = (doc.getObject("Z_Axis"), [""])
linearpattern6.Mode = "offset"
linearpattern6.Offset = Q("4.75 in")
linearpattern6.Occurrences = 2
linearpattern6.Reversed = True
body.Tip = linearpattern6

# Sketch on YZ plane
sketch14 = body.newObject("Sketcher::SketchObject", "Sketch013")
sketch14.AttachmentSupport = (doc.getObject("YZ_Plane"), [""])
sketch14.MapMode = "FlatFace"
sketch14.AttachmentOffset = App.Placement(Vector(0, 0, 0.25 * 25.4), App.Rotation())
add_polygon(sketch14, [(120.65, -127), (114.3, -127), (114.3, -139.7), (120.65, -139.7)])  # lines 0-3
sketch14.addConstraint(Sketcher.Constraint("Horizontal", 0))
sketch14.addConstraint(Sketcher.Constraint("Vertical", 1))
sketch14.addConstraint(Sketcher.Constraint("Horizontal", 2))
sketch14.addConstraint(Sketcher.Constraint("Vertical", 3))
sketch14.addConstraint(Sketcher.Constraint("DistanceY", 1, 2, 1, 1, Q("0.5 in")))
sketch14.addConstraint(Sketcher.Constraint("DistanceY", 0, 2, -1, 1, Q("5 in")))
sketch14.addConstraint(Sketcher.Constraint("DistanceX", 0, 2, 0, 1, Q("0.25 in")))
sketch14.addConstraint(Sketcher.Constraint("DistanceX", -1, 1, 0, 2, Q("4.5 in")))
pocket13 = body.newObject("PartDesign::Pocket", "Pocket012")
pocket13.Profile = sketch14
pocket13.Type = "ThroughAll"
doc.recompute()

linearpattern7 = body.newObject("PartDesign::LinearPattern", "LinearPattern006")
linearpattern7.Originals = [pocket13]
linearpattern7.Direction = (doc.getObject("Z_Axis"), [""])
linearpattern7.Mode = "offset"
linearpattern7.Offset = Q("1 in")
linearpattern7.Occurrences = 5
linearpattern7.Reversed = True
body.Tip = linearpattern7

# Sketch on YZ plane
sketch15 = body.newObject("Sketcher::SketchObject", "Sketch014")
sketch15.AttachmentSupport = (doc.getObject("YZ_Plane"), [""])
sketch15.MapMode = "FlatFace"
sketch15.AttachmentOffset = App.Placement(Vector(0, 0, 0.25 * 25.4), App.Rotation())
add_polygon(sketch15, [(393.7, -222.705909), (279.78538, -25.4), (165.1, -25.4), (165.1, -406.4), (393.7, -406.4)])  # lines 0-4
sketch15.addConstraint(Sketcher.Constraint("Horizontal", 1))
sketch15.addConstraint(Sketcher.Constraint("Vertical", 2))
sketch15.addConstraint(Sketcher.Constraint("Horizontal", 3))
sketch15.addConstraint(Sketcher.Constraint("Vertical", 4))
sketch15.addConstraint(Sketcher.Constraint("DistanceX", 3, 1, 3, 2, Q("9 in")))
sketch15.addConstraint(Sketcher.Constraint("DistanceY", 2, 2, 2, 1, Q("15 in")))
sketch15.addConstraint(Sketcher.Constraint("DistanceY", 0, 2, -1, 1, Q("1 in")))
sketch15.addConstraint(Sketcher.Constraint("Angle", 0, Q("120 deg")))
sketch15.addConstraint(Sketcher.Constraint("DistanceX", -1, 1, 1, 2, Q("6.5 in")))
sketch15.addConstraint(Sketcher.Constraint("DistanceX", 1, 2, 1, 1, 114.68538))
pocket14 = body.newObject("PartDesign::Pocket", "Pocket013")
pocket14.Profile = sketch15
pocket14.Type = "ThroughAll"

# Sketch on YZ plane
sketch16 = body.newObject("Sketcher::SketchObject", "Sketch015")
sketch16.AttachmentSupport = (doc.getObject("YZ_Plane"), [""])
sketch16.MapMode = "FlatFace"
sketch16.AttachmentOffset = App.Placement(Vector(0, 0, 0.25 * 25.4), App.Rotation())
add_polygon(sketch16, [(107.95, -133.35), (50.8, -133.35), (50.8, -234.95), (107.95, -234.95)])  # lines 0-3
sketch16.addConstraint(Sketcher.Constraint("Horizontal", 0))
sketch16.addConstraint(Sketcher.Constraint("Vertical", 1))
sketch16.addConstraint(Sketcher.Constraint("Horizontal", 2))
sketch16.addConstraint(Sketcher.Constraint("Vertical", 3))
sketch16.addConstraint(Sketcher.Constraint("DistanceY", 1, 2, 1, 1, Q("4 in")))
sketch16.addConstraint(Sketcher.Constraint("DistanceX", -1, 1, 0, 2, Q("2 in")))
sketch16.addConstraint(Sketcher.Constraint("DistanceX", 0, 2, 0, 1, Q("2.25 in")))
sketch16.addConstraint(Sketcher.Constraint("DistanceY", 0, 2, -1, 1, Q("5.25 in")))
pocket15 = body.newObject("PartDesign::Pocket", "Pocket014")
pocket15.Profile = sketch16
pocket15.Type = "ThroughAll"

# Sketch on YZ plane
sketch17 = body.newObject("Sketcher::SketchObject", "Sketch016")
sketch17.AttachmentSupport = (doc.getObject("YZ_Plane"), [""])
sketch17.MapMode = "FlatFace"
sketch17.AttachmentOffset = App.Placement(Vector(0, 0, 0.25 * 25.4), App.Rotation())
add_polygon(sketch17, [(25.4, -266.7), (25.4, -308.202955), (82.094091, -406.4), (133.35, -406.4), (133.35, -266.7)])  # lines 0-4
add_polygon(sketch17, [(133.35, -25.4), (82.094091, -25.4), (38.1, -101.6), (133.35, -101.6)])  # lines 5-8
add_polygon(sketch17, [(38.1, -25.4), (25.4, -25.4), (25.4, -47.397045)])  # lines 9-11
sketch17.addConstraint(Sketcher.Constraint("Vertical", 0))
sketch17.addConstraint(Sketcher.Constraint("Horizontal", 2))
sketch17.addConstraint(Sketcher.Constraint("Vertical", 3))
sketch17.addConstraint(Sketcher.Constraint("Horizontal", 4))
sketch17.addConstraint(Sketcher.Constraint("Horizontal", 5))
sketch17.addConstraint(Sketcher.Constraint("Horizontal", 7))
sketch17.addConstraint(Sketcher.Constraint("Vertical", 8))
sketch17.addConstraint(Sketcher.Constraint("Horizontal", 9))
sketch17.addConstraint(Sketcher.Constraint("Vertical", 10))
sketch17.addConstraint(Sketcher.Constraint("Parallel", 6, 11))
sketch17.addConstraint(Sketcher.Constraint("Horizontal", 8, 2, 9, 2))
sketch17.addConstraint(Sketcher.Constraint("Vertical", 1, 2, 5, 2))
sketch17.addConstraint(Sketcher.Constraint("Vertical", 3, 2, 7, 2))
sketch17.addConstraint(Sketcher.Constraint("Vertical", 4, 2, 9, 2))
sketch17.addConstraint(Sketcher.Constraint("Vertical", 6, 2, 11, 2))
sketch17.addConstraint(Sketcher.Constraint("DistanceY", 8, 1, 8, 2, Q("3 in")))
sketch17.addConstraint(Sketcher.Constraint("Distance", 11, Q("1 in")))
sketch17.addConstraint(Sketcher.Constraint("DistanceX", 9, 2, 9, 1, Q("0.5 in")))
sketch17.addConstraint(Sketcher.Constraint("DistanceY", 3, 1, 3, 2, Q("5.5 in")))
sketch17.addConstraint(Sketcher.Constraint("DistanceX", -1, 1, 0, 2, Q("1 in")))
sketch17.addConstraint(Sketcher.Constraint("DistanceY", 1, 2, -1, 1, Q("16 in")))
sketch17.addConstraint(Sketcher.Constraint("DistanceY", 5, 2, -1, 1, Q("1 in")))
sketch17.addConstraint(Sketcher.Constraint("Angle", 1, Q("-60 deg")))
sketch17.addConstraint(Sketcher.Constraint("DistanceX", 4, 2, 4, 1, Q("4.25 in")))
pocket16 = body.newObject("PartDesign::Pocket", "Pocket015")
pocket16.Profile = sketch17
pocket16.Type = "ThroughAll"

# Sketch on YZ plane
sketch18 = body.newObject("Sketcher::SketchObject", "Sketch017")
sketch18.AttachmentSupport = (doc.getObject("YZ_Plane"), [""])
sketch18.MapMode = "FlatFace"
sketch18.AttachmentOffset = App.Placement(Vector(0, 0, 0.25 * 25.4), App.Rotation())
add_polygon(sketch18, [(38.1, -406.4), (25.4, -384.402955), (25.4, -406.4)])  # lines 0-2
sketch18.addConstraint(Sketcher.Constraint("Vertical", 1))
sketch18.addConstraint(Sketcher.Constraint("Horizontal", 2))
sketch18.addConstraint(Sketcher.Constraint("Distance", 0, Q("1 in")))
sketch18.addConstraint(Sketcher.Constraint("DistanceX", 2, 1, 2, 2, Q("0.5 in")))
sketch18.addConstraint(Sketcher.Constraint("DistanceX", -1, 1, 0, 2, Q("1 in")))
sketch18.addConstraint(Sketcher.Constraint("DistanceY", 1, 2, -1, 1, Q("16 in")))
pocket17 = body.newObject("PartDesign::Pocket", "Pocket016")
pocket17.Profile = sketch18
pocket17.Type = "ThroughAll"

# Sketch on YZ plane
sketch19 = body.newObject("Sketcher::SketchObject", "Sketch018")
sketch19.AttachmentSupport = (doc.getObject("YZ_Plane"), [""])
sketch19.MapMode = "FlatFace"
sketch19.AttachmentOffset = App.Placement(Vector(0, 0, 0.25 * 25.4), App.Rotation())
add_polygon(sketch19, [(133.35, -266.7), (126.280871, -266.7), (133.35, -278.944091)])  # lines 0-2
add_polygon(sketch19, [(133.35, -89.355909), (126.280871, -101.6), (133.35, -101.6)])  # lines 3-5
add_polygon(sketch19, [(25.4, -278.944091), (32.469129, -266.7), (25.4, -266.7)])  # lines 6-8
add_polygon(sketch19, [(107.95, -133.35), (100.880871, -133.35), (107.95, -145.594091)])  # lines 9-11
add_polygon(sketch19, [(107.95, -234.95), (107.95, -222.705909), (100.880871, -234.95)])  # lines 12-14
add_polygon(sketch19, [(50.8, -133.35), (50.8, -145.594091), (57.869129, -133.35)])  # lines 15-17
add_polygon(sketch19, [(50.8, -222.705909), (50.8, -234.95), (57.869129, -234.95)])  # lines 18-20
sketch19.addConstraint(Sketcher.Constraint("Horizontal", 0))
sketch19.addConstraint(Sketcher.Constraint("Vertical", 2))
sketch19.addConstraint(Sketcher.Constraint("Horizontal", 4))
sketch19.addConstraint(Sketcher.Constraint("Vertical", 5))
sketch19.addConstraint(Sketcher.Constraint("Horizontal", 7))
sketch19.addConstraint(Sketcher.Constraint("Vertical", 8))
sketch19.addConstraint(Sketcher.Constraint("Horizontal", 9))
sketch19.addConstraint(Sketcher.Constraint("Vertical", 11))
sketch19.addConstraint(Sketcher.Constraint("Vertical", 12))
sketch19.addConstraint(Sketcher.Constraint("Horizontal", 14))
sketch19.addConstraint(Sketcher.Constraint("Vertical", 15))
sketch19.addConstraint(Sketcher.Constraint("Horizontal", 17))
sketch19.addConstraint(Sketcher.Constraint("Vertical", 18))
sketch19.addConstraint(Sketcher.Constraint("Horizontal", 19))
sketch19.addConstraint(Sketcher.Constraint("Parallel", 3, 6))
sketch19.addConstraint(Sketcher.Constraint("Parallel", 1, 10))
sketch19.addConstraint(Sketcher.Constraint("Parallel", 6, 13))
sketch19.addConstraint(Sketcher.Constraint("Parallel", 13, 16))
sketch19.addConstraint(Sketcher.Constraint("Parallel", 10, 20))
sketch19.addConstraint(Sketcher.Constraint("Horizontal", 2, 2, 6, 2))
sketch19.addConstraint(Sketcher.Constraint("Horizontal", 1, 2, 8, 2))
sketch19.addConstraint(Sketcher.Constraint("Horizontal", 10, 2, 15, 2))
sketch19.addConstraint(Sketcher.Constraint("Horizontal", 11, 2, 16, 2))
sketch19.addConstraint(Sketcher.Constraint("Horizontal", 14, 2, 18, 2))
sketch19.addConstraint(Sketcher.Constraint("Horizontal", 12, 2, 20, 2))
sketch19.addConstraint(Sketcher.Constraint("Vertical", 0, 2, 3, 2))
sketch19.addConstraint(Sketcher.Constraint("Vertical", 2, 2, 4, 2))
sketch19.addConstraint(Sketcher.Constraint("Vertical", 11, 2, 12, 2))
sketch19.addConstraint(Sketcher.Constraint("Vertical", 9, 2, 13, 2))
sketch19.addConstraint(Sketcher.Constraint("Vertical", 17, 2, 18, 2))
sketch19.addConstraint(Sketcher.Constraint("Vertical", 16, 2, 19, 2))
sketch19.addConstraint(Sketcher.Constraint("Equal", 7, 9))
sketch19.addConstraint(Sketcher.Constraint("DistanceY", 3, 2, -1, 1, Q("4 in")))
sketch19.addConstraint(Sketcher.Constraint("DistanceX", -1, 1, 7, 2, Q("1 in")))
sketch19.addConstraint(Sketcher.Constraint("DistanceX", -1, 1, 15, 2, Q("2 in")))
sketch19.addConstraint(Sketcher.Constraint("Angle", 1, Q("-60 deg")))
sketch19.addConstraint(Sketcher.Constraint("DistanceX", 9, 2, 3, 2, Q("1 in")))
sketch19.addConstraint(Sketcher.Constraint("DistanceY", 0, 2, -1, 1, Q("10.5 in")))
sketch19.addConstraint(Sketcher.Constraint("DistanceX", -1, 1, 1, 2, Q("5.25 in")))
sketch19.addConstraint(Sketcher.Constraint("DistanceY", 9, 2, -1, 1, Q("5.25 in")))
sketch19.addConstraint(Sketcher.Constraint("DistanceY", 13, 2, -1, 1, Q("9.25 in")))
sketch19.addConstraint(Sketcher.Constraint("DistanceX", 0, 2, 0, 1, 7.069129))
pad2 = body.newObject("PartDesign::Pad", "Pad001")
pad2.Profile = sketch19
pad2.Length = Q("0.25 in")
pad2.Reversed = True
body2 = doc.addObject("PartDesign::Body", "Body001")

# Sketch on YZ plane
sketch20 = body2.newObject("Sketcher::SketchObject", "Sketch019")
sketch20.AttachmentSupport = (doc.getObject("YZ_Plane001"), [""])
sketch20.MapMode = "FlatFace"
sketch20.AttachmentOffset = App.Placement(Vector(0, 0, 0.25 * 25.4), App.Rotation())
add_polygon(sketch20, [(163.83, -12.7), (12.7, -12.7), (12.7, -114.3), (50.8, -114.3), (50.8, -254), (12.7, -254), (12.7, -419.1), (163.83, -419.1)])  # lines 0-7
sketch20.addConstraint(Sketcher.Constraint("Horizontal", 0))
sketch20.addConstraint(Sketcher.Constraint("Vertical", 1))
sketch20.addConstraint(Sketcher.Constraint("Horizontal", 2))
sketch20.addConstraint(Sketcher.Constraint("Vertical", 3))
sketch20.addConstraint(Sketcher.Constraint("Horizontal", 4))
sketch20.addConstraint(Sketcher.Constraint("Vertical", 5))
sketch20.addConstraint(Sketcher.Constraint("Horizontal", 6))
sketch20.addConstraint(Sketcher.Constraint("Vertical", 7))
sketch20.addConstraint(Sketcher.Constraint("Vertical", 1, 2, 4, 2))
sketch20.addConstraint(Sketcher.Constraint("DistanceY", 1, 2, 1, 1, Q("4 in")))
sketch20.addConstraint(Sketcher.Constraint("DistanceY", 7, 1, 7, 2, Q("16 in")))
sketch20.addConstraint(Sketcher.Constraint("DistanceX", 2, 1, 2, 2, Q("1.5 in")))
sketch20.addConstraint(Sketcher.Constraint("DistanceY", 3, 2, 3, 1, Q("5.5 in")))
sketch20.addConstraint(Sketcher.Constraint("DistanceX", -1, 1, 2, 2, Q("2 in")))
sketch20.addConstraint(Sketcher.Constraint("DistanceY", 3, 2, -1, 1, Q("10 in")))
sketch20.addConstraint(Sketcher.Constraint("DistanceX", 0, 2, 0, 1, Q("5.95 in")))
pad3 = body2.newObject("PartDesign::Pad", "Pad002")
pad3.Profile = sketch20
pad3.Length = Q("0.25 in")
pad3.Reversed = True

# Sketch on YZ plane
sketch21 = body2.newObject("Sketcher::SketchObject", "Sketch020")
sketch21.AttachmentSupport = (doc.getObject("YZ_Plane001"), [""])
sketch21.MapMode = "FlatFace"
sketch21.AttachmentOffset = App.Placement(Vector(0, 0, 0.25 * 25.4), App.Rotation())
sketch21.addGeometry(Part.Circle(Vector(157.1625, -38.1, 0), Vector(0, 0, 1), 2.54), False)
sketch21.addGeometry(Part.Circle(Vector(157.1625, -88.9, 0), Vector(0, 0, 1), 2.54), False)
sketch21.addGeometry(Part.Circle(Vector(157.1625, -139.7, 0), Vector(0, 0, 1), 2.54), False)
sketch21.addGeometry(Part.Circle(Vector(157.1625, -190.5, 0), Vector(0, 0, 1), 2.54), False)
sketch21.addGeometry(Part.Circle(Vector(157.1625, -241.3, 0), Vector(0, 0, 1), 2.54), False)
sketch21.addGeometry(Part.Circle(Vector(157.1625, -292.1, 0), Vector(0, 0, 1), 2.54), False)
sketch21.addGeometry(Part.Circle(Vector(157.1625, -342.9, 0), Vector(0, 0, 1), 2.54), False)
sketch21.addGeometry(Part.Circle(Vector(157.1625, -393.7, 0), Vector(0, 0, 1), 2.54), False)
sketch21.addConstraint(Sketcher.Constraint("Equal", 0, 1))
sketch21.addConstraint(Sketcher.Constraint("Equal", 1, 2))
sketch21.addConstraint(Sketcher.Constraint("Equal", 2, 3))
sketch21.addConstraint(Sketcher.Constraint("Equal", 3, 4))
sketch21.addConstraint(Sketcher.Constraint("Equal", 4, 5))
sketch21.addConstraint(Sketcher.Constraint("Equal", 5, 6))
sketch21.addConstraint(Sketcher.Constraint("Equal", 6, 7))
sketch21.addConstraint(Sketcher.Constraint("Vertical", 0, 3, 1, 3))
sketch21.addConstraint(Sketcher.Constraint("Vertical", 1, 3, 2, 3))
sketch21.addConstraint(Sketcher.Constraint("Vertical", 2, 3, 3, 3))
sketch21.addConstraint(Sketcher.Constraint("Vertical", 3, 3, 4, 3))
sketch21.addConstraint(Sketcher.Constraint("Vertical", 4, 3, 5, 3))
sketch21.addConstraint(Sketcher.Constraint("Vertical", 5, 3, 6, 3))
sketch21.addConstraint(Sketcher.Constraint("Vertical", 6, 3, 7, 3))
sketch21.addConstraint(Sketcher.Constraint("Diameter", 0, Q("0.2 in")))
sketch21.addConstraint(Sketcher.Constraint("DistanceY", 1, 3, 0, 3, Q("2 in")))
sketch21.addConstraint(Sketcher.Constraint("DistanceY", 2, 3, 1, 3, Q("2 in")))
sketch21.addConstraint(Sketcher.Constraint("DistanceY", 3, 3, 2, 3, Q("2 in")))
sketch21.addConstraint(Sketcher.Constraint("DistanceY", 4, 3, 3, 3, Q("2 in")))
sketch21.addConstraint(Sketcher.Constraint("DistanceY", 5, 3, 4, 3, Q("2 in")))
sketch21.addConstraint(Sketcher.Constraint("DistanceY", 6, 3, 5, 3, Q("2 in")))
sketch21.addConstraint(Sketcher.Constraint("DistanceY", 7, 3, 6, 3, Q("2 in")))
sketch21.addConstraint(Sketcher.Constraint("DistanceY", 0, 3, -1, 1, Q("1.5 in")))
sketch21.addConstraint(Sketcher.Constraint("DistanceX", -1, 1, 0, 3, Q("6.1875 in")))
pocket18 = body2.newObject("PartDesign::Pocket", "Pocket017")
pocket18.Profile = sketch21
pocket18.Type = "ThroughAll"

# Sketch on YZ plane
sketch22 = body2.newObject("Sketcher::SketchObject", "Sketch021")
sketch22.AttachmentSupport = (doc.getObject("YZ_Plane001"), [""])
sketch22.MapMode = "FlatFace"
sketch22.AttachmentOffset = App.Placement(Vector(0, 0, 0.25 * 25.4), App.Rotation())
sketch22.addGeometry(Part.Circle(Vector(58.42, -22.225, 0), Vector(0, 0, 1), 1.75), False)
sketch22.addGeometry(Part.Circle(Vector(22.225, -104.775, 0), Vector(0, 0, 1), 1.75), False)
sketch22.addGeometry(Part.Circle(Vector(22.225, -263.525, 0), Vector(0, 0, 1), 1.75), False)
sketch22.addGeometry(Part.Circle(Vector(58.42, -409.575, 0), Vector(0, 0, 1), 1.75), False)
sketch22.addConstraint(Sketcher.Constraint("Equal", 0, 1))
sketch22.addConstraint(Sketcher.Constraint("Equal", 1, 2))
sketch22.addConstraint(Sketcher.Constraint("Equal", 2, 3))
sketch22.addConstraint(Sketcher.Constraint("Vertical", 1, 3, 2, 3))
sketch22.addConstraint(Sketcher.Constraint("Vertical", 0, 3, 3, 3))
sketch22.addConstraint(Sketcher.Constraint("DistanceY", 3, 3, 1, 3, Q("12 in")))
sketch22.addConstraint(Sketcher.Constraint("DistanceX", -1, 1, 0, 3, Q("2.3 in")))
sketch22.addConstraint(Sketcher.Constraint("DistanceY", 2, 3, 0, 3, Q("9.5 in")))
sketch22.addConstraint(Sketcher.Constraint("Diameter", 0, 3.5))
sketch22.addConstraint(Sketcher.Constraint("DistanceY", 1, 3, 0, 3, Q("3.25 in")))
sketch22.addConstraint(Sketcher.Constraint("DistanceY", 0, 3, -1, 1, Q("0.875 in")))
sketch22.addConstraint(Sketcher.Constraint("DistanceX", -1, 1, 1, 3, Q("0.875 in")))
pocket19 = body2.newObject("PartDesign::Pocket", "Pocket018")
pocket19.Profile = sketch22
pocket19.Type = "ThroughAll"
doc.recompute()

fillet = body2.newObject("PartDesign::Fillet", "Fillet")
fillet.Base = (pocket19, edges_at(pocket19, [
    (3.175, 163.83, -419.1),
    (3.175, 12.7, -419.1),
    (3.175, 12.7, -254),
    (3.175, 50.8, -254),
    (3.175, 50.8, -114.3),
    (3.175, 12.7, -114.3),
    (3.175, 12.7, -12.7),
    (3.175, 163.83, -12.7),
]))
fillet.Radius = Q("0.25 in")
body.Visibility = False

doc.recompute()
